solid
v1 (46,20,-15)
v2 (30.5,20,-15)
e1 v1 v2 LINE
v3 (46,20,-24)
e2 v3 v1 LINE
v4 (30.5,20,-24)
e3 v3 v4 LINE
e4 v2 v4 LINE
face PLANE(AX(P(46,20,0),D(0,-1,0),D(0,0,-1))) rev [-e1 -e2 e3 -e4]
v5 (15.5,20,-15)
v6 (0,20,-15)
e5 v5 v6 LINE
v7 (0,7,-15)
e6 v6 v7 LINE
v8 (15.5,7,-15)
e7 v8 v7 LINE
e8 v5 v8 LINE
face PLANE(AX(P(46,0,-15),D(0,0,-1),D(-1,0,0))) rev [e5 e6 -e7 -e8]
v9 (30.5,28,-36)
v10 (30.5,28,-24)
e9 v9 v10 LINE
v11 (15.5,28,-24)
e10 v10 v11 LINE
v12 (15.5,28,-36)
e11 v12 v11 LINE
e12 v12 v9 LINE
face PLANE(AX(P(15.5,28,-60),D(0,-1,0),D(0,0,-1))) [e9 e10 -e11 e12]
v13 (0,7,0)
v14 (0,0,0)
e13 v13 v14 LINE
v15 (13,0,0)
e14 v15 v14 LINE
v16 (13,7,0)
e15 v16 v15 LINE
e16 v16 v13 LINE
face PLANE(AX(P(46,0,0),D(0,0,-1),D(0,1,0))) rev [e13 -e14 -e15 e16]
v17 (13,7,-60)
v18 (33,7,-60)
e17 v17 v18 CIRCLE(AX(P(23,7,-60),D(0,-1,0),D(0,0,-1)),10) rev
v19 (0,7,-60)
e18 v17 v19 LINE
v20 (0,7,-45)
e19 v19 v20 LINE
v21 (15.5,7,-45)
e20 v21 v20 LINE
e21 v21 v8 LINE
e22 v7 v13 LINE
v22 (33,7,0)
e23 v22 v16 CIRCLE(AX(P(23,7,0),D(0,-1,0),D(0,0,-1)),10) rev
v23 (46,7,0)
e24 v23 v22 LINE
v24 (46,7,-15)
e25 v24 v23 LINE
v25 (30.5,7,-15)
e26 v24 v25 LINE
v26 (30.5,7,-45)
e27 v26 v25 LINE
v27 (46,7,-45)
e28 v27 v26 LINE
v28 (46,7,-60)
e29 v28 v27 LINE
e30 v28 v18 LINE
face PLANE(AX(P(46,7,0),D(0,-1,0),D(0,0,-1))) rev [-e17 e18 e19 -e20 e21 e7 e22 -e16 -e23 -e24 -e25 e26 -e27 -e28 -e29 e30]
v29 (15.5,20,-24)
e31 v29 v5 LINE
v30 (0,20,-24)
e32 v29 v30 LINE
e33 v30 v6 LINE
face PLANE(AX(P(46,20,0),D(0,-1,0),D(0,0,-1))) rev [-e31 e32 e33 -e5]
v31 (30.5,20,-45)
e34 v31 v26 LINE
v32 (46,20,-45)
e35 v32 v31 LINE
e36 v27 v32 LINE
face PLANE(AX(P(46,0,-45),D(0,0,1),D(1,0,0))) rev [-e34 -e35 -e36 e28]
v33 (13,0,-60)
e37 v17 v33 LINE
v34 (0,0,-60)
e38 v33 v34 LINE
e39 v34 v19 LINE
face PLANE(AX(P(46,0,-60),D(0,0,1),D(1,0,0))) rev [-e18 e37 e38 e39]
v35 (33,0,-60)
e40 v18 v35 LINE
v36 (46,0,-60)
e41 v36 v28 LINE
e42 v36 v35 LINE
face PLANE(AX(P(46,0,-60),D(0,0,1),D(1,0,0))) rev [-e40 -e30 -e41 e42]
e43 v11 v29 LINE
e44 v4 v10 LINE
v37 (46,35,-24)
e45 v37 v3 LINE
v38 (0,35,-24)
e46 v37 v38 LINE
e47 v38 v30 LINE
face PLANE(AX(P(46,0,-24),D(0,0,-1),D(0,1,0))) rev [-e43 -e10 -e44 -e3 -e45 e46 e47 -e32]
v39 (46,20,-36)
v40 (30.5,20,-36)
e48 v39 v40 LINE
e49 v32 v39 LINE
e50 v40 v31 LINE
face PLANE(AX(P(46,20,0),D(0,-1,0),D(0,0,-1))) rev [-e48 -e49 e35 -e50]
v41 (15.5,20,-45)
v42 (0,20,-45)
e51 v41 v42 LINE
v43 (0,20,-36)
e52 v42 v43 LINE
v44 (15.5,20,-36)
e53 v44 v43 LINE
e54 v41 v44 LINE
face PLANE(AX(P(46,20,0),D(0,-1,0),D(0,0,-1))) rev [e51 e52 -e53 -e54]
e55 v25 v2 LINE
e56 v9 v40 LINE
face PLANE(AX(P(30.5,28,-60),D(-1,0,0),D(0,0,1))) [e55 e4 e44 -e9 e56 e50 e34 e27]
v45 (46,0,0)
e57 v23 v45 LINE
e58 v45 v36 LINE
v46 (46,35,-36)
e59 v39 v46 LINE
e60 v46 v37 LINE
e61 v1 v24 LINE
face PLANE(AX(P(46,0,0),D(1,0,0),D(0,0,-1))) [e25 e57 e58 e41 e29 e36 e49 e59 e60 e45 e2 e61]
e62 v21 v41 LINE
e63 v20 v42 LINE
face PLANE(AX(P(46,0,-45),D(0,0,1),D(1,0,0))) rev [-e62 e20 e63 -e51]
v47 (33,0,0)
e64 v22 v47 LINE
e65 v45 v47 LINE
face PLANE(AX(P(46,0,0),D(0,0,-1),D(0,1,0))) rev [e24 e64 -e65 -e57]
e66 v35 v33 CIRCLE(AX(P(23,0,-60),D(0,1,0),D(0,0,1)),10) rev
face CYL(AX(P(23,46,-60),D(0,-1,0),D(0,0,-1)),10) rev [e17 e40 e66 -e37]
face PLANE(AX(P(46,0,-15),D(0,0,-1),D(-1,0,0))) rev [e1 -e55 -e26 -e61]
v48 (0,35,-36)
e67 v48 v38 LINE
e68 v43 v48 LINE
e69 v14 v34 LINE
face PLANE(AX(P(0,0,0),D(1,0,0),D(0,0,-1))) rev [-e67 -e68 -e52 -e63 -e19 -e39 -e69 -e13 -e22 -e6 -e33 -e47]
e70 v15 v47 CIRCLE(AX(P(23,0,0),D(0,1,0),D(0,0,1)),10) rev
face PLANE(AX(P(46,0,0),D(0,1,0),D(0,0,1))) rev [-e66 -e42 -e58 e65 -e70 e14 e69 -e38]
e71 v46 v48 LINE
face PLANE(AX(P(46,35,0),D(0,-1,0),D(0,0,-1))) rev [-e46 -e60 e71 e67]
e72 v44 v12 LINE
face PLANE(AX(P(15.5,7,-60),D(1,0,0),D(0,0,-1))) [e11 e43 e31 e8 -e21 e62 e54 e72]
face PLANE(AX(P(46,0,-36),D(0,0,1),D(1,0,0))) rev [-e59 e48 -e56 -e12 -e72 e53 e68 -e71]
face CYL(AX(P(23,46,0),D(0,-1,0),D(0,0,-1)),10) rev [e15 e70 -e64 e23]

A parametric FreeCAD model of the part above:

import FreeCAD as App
import Part
import Sketcher
from FreeCAD import Vector
Q = App.Units.Quantity

doc = App.newDocument("Part")
body = doc.addObject("PartDesign::Body", "Body")

sketch1 = doc.addObject("Sketcher::SketchObject", "Sketch")
body.addObject(sketch1)
sketch1.AttachmentSupport = (doc.YZ_Plane, [""])
sketch1.MapMode = "FlatFace"
sketch1.addGeometry([
    Part.LineSegment(Vector(35, -24, 0), Vector(20, -24, 0)),
    Part.LineSegment(Vector(20, -24, 0), Vector(20, -15, 0)),
    Part.LineSegment(Vector(20, -15, 0), Vector(7, -15, 0)),
    Part.LineSegment(Vector(7, -15, 0), Vector(7, 0, 0)),
    Part.LineSegment(Vector(7, 0, 0), Vector(0, 0, 0)),
    Part.LineSegment(Vector(0, 0, 0), Vector(0, -60, 0)),
    Part.LineSegment(Vector(0, -60, 0), Vector(7, -60, 0)),
    Part.LineSegment(Vector(7, -60, 0), Vector(7, -45, 0)),
    Part.LineSegment(Vector(7, -45, 0), Vector(20, -45, 0)),
    Part.LineSegment(Vector(20, -45, 0), Vector(20, -36, 0)),
    Part.LineSegment(Vector(20, -36, 0), Vector(35, -36, 0)),
    Part.LineSegment(Vector(35, -36, 0), Vector(35, -24, 0)),
], False)
sketch1.addConstraint([
    Sketcher.Constraint("Coincident", 0, 2, 1, 1),
    Sketcher.Constraint("Coincident", 1, 2, 2, 1),
    Sketcher.Constraint("Coincident", 2, 2, 3, 1),
    Sketcher.Constraint("Coincident", 3, 2, 4, 1),
    Sketcher.Constraint("Coincident", 4, 2, 5, 1),
    Sketcher.Constraint("Coincident", 5, 2, 6, 1),
    Sketcher.Constraint("Coincident", 6, 2, 7, 1),
    Sketcher.Constraint("Coincident", 7, 2, 8, 1),
    Sketcher.Constraint("Coincident", 8, 2, 9, 1),
    Sketcher.Constraint("Coincident", 9, 2, 10, 1),
    Sketcher.Constraint("Coincident", 10, 2, 11, 1),
    Sketcher.Constraint("Coincident", 11, 2, 0, 1),
    Sketcher.Constraint("Horizontal", 0),
    Sketcher.Constraint("Vertical", 1),
    Sketcher.Constraint("Horizontal", 2),
    Sketcher.Constraint("Vertical", 3),
    Sketcher.Constraint("Horizontal", 4),
    Sketcher.Constraint("Vertical", 5),
    Sketcher.Constraint("Horizontal", 6),
    Sketcher.Constraint("Vertical", 7),
    Sketcher.Constraint("Horizontal", 8),
    Sketcher.Constraint("Vertical", 9),
    Sketcher.Constraint("Horizontal", 10),
    Sketcher.Constraint("Vertical", 11),
    Sketcher.Constraint("Coincident", 4, 2, -1, 1),
    Sketcher.Constraint("Vertical", 3, 2, 6, 2),
    Sketcher.Constraint("Vertical", 1, 2, 8, 2),
    Sketcher.Constraint("Equal", 10, 3),
    Sketcher.Constraint("Equal", 3, 7),
    Sketcher.Constraint("Equal", 1, 9),
    Sketcher.Constraint("DistanceX", 0, 2, 0, 1, Q("15 mm")),
    Sketcher.Constraint("DistanceX", 2, 2, 2, 1, Q("13 mm")),
    Sketcher.Constraint("DistanceX", 4, 2, 4, 1, Q("7 mm")),
    Sketcher.Constraint("DistanceY", 1, 1, 1, 2, Q("9 mm")),
    Sketcher.Constraint("DistanceY", 5, 2, 5, 1, Q("60 mm")),
])
pad1 = doc.addObject("PartDesign::Pad", "Pad")
body.addObject(pad1)
pad1.Profile = sketch1
pad1.Length = 46

sketch2 = doc.addObject("Sketcher::SketchObject", "Sketch001")
body.addObject(sketch2)
sketch2.AttachmentSupport = (doc.XZ_Plane, [""])
sketch2.MapMode = "FlatFace"
sketch2.addGeometry([
    Part.Circle(Vector(23, 0, 0), Vector(0, 0, 1), 10),
    Part.Circle(Vector(23, -60, 0), Vector(0, 0, 1), 10),
], False)
sketch2.addConstraint([
    Sketcher.Constraint("Equal", 0, 1),
    Sketcher.Constraint("PointOnObject", 0, 3, -1),
    Sketcher.Constraint("Vertical", 0, 3, 1, 3),
    Sketcher.Constraint("Diameter", 0, Q("20 mm")),
    Sketcher.Constraint("DistanceX", -1, 1, 0, 3, Q("23 mm")),
    Sketcher.Constraint("DistanceY", 1, 3, -1, 1, Q("60 mm")),
])
pocket1 = doc.addObject("PartDesign::Pocket", "Pocket")
body.addObject(pocket1)
pocket1.Profile = sketch2
pocket1.Type = "ThroughAll"
pocket1.Midplane = True

sketch3 = doc.addObject("Sketcher::SketchObject", "Sketch002")
body.addObject(sketch3)
sketch3.AttachmentSupport = (doc.XY_Plane, [""])
sketch3.MapMode = "FlatFace"
sketch3.addGeometry([
    Part.LineSegment(Vector(16, 28, 0), Vector(16, 7, 0)),
    Part.LineSegment(Vector(16, 7, 0), Vector(30, 7, 0)),
    Part.LineSegment(Vector(30, 7, 0), Vector(30, 28, 0)),
    Part.LineSegment(Vector(30, 28, 0), Vector(16, 28, 0)),
], False)
sketch3.addConstraint([
    Sketcher.Constraint("Coincident", 0, 2, 1, 1),
    Sketcher.Constraint("Coincident", 1, 2, 2, 1),
    Sketcher.Constraint("Coincident", 2, 2, 3, 1),
    Sketcher.Constraint("Coincident", 3, 2, 0, 1),
    Sketcher.Constraint("Vertical", 0),
    Sketcher.Constraint("Horizontal", 1),
    Sketcher.Constraint("Vertical", 2),
    Sketcher.Constraint("Horizontal", 3),
    Sketcher.Constraint("DistanceX", 1, 1, 1, 2, Q("15 mm")),
    Sketcher.Constraint("DistanceY", 0, 2, 0, 1, Q("21 mm")),
    Sketcher.Constraint("DistanceY", -1, 1, 0, 2, Q("7 mm")),
    Sketcher.Constraint("DistanceX", -1, 1, 0, 2, Q("15.5 mm")),
])
pocket2 = doc.addObject("PartDesign::Pocket", "Pocket001")
body.addObject(pocket2)
pocket2.Profile = sketch3
pocket2.Length = 60

doc.recompute()
